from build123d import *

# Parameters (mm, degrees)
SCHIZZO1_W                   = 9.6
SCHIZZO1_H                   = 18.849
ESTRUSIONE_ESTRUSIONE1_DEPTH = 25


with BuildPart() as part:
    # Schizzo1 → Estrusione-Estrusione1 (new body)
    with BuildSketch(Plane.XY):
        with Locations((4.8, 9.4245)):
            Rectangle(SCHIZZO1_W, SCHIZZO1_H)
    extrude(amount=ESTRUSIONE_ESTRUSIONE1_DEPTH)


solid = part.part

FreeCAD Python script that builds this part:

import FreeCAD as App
import Part
import Sketcher
from FreeCAD import Vector
Q = App.Units.Quantity

doc = App.newDocument("Part")
params = doc.addObject("Spreadsheet::Sheet", "Params")
for row, (alias, value) in enumerate([
    ("sketch1_width", "9.6 mm"),
    ("pad1_length", "25 mm"),
], start=1):
    params.set(f"A{row}", alias)
    params.set(f"B{row}", "=" + value)
    params.setAlias(f"B{row}", alias)

body = doc.addObject("PartDesign::Body", "Body")

sketch1 = doc.addObject("Sketcher::SketchObject", "Sketch")
body.addObject(sketch1)
sketch1.AttachmentSupport = (doc.XY_Plane, [""])
sketch1.MapMode = "FlatFace"
sketch1.addGeometry(Part.LineSegment(Vector(0, 19, 0), Vector(0, 0, 0)), False)
sketch1.addGeometry(Part.LineSegment(Vector(0, 0, 0), Vector(10, 0, 0)), False)
sketch1.addGeometry(Part.LineSegment(Vector(10, 0, 0), Vector(10, 19, 0)), False)
sketch1.addGeometry(Part.LineSegment(Vector(10, 19, 0), Vector(0, 19, 0)), False)
sketch1.addConstraint(Sketcher.Constraint("Coincident", 0, 2, 1, 1))
sketch1.addConstraint(Sketcher.Constraint("Coincident", 1, 2, 2, 1))
sketch1.addConstraint(Sketcher.Constraint("Coincident", 2, 2, 3, 1))
sketch1.addConstraint(Sketcher.Constraint("Coincident", 3, 2, 0, 1))
sketch1.addConstraint(Sketcher.Constraint("Vertical", 0))
sketch1.addConstraint(Sketcher.Constraint("Horizontal", 1))
sketch1.addConstraint(Sketcher.Constraint("Vertical", 2))
sketch1.addConstraint(Sketcher.Constraint("Horizontal", 3))
sketch1.addConstraint(Sketcher.Constraint("Coincident", 0, 2, -1, 1))
sketch1.addConstraint(Sketcher.Constraint("DistanceX", 1, 1, 1, 2, Q("9.6 mm")))
sketch1.addConstraint(Sketcher.Constraint("DistanceY", 0, 2, 0, 1, Q("18.849 mm")))
sketch1.setExpression("Constraints[9]", "Params.sketch1_width")
pad1 = doc.addObject("PartDesign::Pad", "Pad")
body.addObject(pad1)
pad1.Profile = sketch1
pad1.setExpression("Length", "Params.pad1_length")

doc.recompute()
